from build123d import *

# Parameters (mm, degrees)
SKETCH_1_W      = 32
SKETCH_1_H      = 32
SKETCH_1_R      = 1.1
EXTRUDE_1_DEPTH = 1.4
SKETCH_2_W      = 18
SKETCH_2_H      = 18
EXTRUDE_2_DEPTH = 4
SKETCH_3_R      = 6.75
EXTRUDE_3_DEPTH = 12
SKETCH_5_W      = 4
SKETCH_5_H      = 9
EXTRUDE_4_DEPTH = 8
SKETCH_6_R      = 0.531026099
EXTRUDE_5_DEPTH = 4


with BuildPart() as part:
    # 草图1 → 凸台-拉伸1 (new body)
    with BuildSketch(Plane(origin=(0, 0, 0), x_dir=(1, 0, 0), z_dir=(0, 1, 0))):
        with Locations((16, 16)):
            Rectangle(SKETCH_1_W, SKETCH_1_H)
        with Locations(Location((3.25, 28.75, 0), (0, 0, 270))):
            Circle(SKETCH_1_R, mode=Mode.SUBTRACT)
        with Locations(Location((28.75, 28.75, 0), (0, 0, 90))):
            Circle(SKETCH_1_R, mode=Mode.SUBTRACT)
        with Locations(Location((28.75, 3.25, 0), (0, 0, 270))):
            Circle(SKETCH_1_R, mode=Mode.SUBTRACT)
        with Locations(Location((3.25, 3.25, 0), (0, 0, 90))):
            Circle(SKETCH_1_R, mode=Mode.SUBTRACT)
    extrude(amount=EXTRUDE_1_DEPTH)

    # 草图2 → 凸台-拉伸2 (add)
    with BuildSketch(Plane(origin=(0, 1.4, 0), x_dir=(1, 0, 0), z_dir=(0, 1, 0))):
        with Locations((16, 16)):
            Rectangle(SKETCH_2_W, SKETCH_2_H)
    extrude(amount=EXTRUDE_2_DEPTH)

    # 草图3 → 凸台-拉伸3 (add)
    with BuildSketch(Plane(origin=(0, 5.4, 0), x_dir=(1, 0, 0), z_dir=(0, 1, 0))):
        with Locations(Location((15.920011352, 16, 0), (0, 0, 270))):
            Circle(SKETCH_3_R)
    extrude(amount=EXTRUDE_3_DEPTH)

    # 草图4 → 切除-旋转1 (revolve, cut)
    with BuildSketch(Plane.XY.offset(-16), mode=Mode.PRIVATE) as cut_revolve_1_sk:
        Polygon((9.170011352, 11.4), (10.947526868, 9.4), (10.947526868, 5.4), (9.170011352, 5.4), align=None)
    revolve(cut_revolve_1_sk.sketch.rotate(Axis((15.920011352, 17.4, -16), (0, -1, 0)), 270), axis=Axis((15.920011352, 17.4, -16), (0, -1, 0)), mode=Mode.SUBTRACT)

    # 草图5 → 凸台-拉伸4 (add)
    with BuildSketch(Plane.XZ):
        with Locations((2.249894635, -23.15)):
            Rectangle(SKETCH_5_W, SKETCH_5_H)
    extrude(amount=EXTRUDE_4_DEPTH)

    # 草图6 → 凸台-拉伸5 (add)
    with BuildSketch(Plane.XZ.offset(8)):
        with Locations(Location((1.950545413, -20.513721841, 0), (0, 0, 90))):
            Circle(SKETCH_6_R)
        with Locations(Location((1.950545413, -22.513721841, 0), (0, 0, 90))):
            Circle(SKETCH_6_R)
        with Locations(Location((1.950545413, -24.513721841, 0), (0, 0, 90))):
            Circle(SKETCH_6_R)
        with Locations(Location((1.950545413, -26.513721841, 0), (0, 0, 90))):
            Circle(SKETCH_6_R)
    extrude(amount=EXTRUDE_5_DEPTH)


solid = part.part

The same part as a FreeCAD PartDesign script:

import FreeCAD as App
import Part
import Sketcher

V = App.Vector
Q = App.Units.Quantity

doc = App.newDocument("Part")
body = doc.addObject("PartDesign::Body", "Body")

sketch1 = doc.addObject("Sketcher::SketchObject", "Sketch")
body.addObject(sketch1)
sketch1.AttachmentSupport = (doc.XZ_Plane, [""])
sketch1.MapMode = "FlatFace"
sketch1.addGeometry(Part.LineSegment(V(0, -32, 0), V(0, 0, 0)), False)
sketch1.addGeometry(Part.LineSegment(V(0, 0, 0), V(32, 0, 0)), False)
sketch1.addGeometry(Part.LineSegment(V(32, 0, 0), V(32, -32, 0)), False)
sketch1.addGeometry(Part.LineSegment(V(32, -32, 0), V(0, -32, 0)), False)
sketch1.addGeometry(Part.Circle(V(3.2, -3.2, 0), V(0, 0, 1), 1.1), False)
sketch1.addGeometry(Part.Circle(V(28.8, -3.2, 0), V(0, 0, 1), 1.1), False)
sketch1.addGeometry(Part.Circle(V(3.2, -28.8, 0), V(0, 0, 1), 1.1), False)
sketch1.addGeometry(Part.Circle(V(28.8, -28.8, 0), V(0, 0, 1), 1.1), False)
sketch1.addConstraint(Sketcher.Constraint("Coincident", 0, 2, 1, 1))
sketch1.addConstraint(Sketcher.Constraint("Coincident", 1, 2, 2, 1))
sketch1.addConstraint(Sketcher.Constraint("Coincident", 2, 2, 3, 1))
sketch1.addConstraint(Sketcher.Constraint("Coincident", 3, 2, 0, 1))
sketch1.addConstraint(Sketcher.Constraint("Vertical", 0))
sketch1.addConstraint(Sketcher.Constraint("Horizontal", 1))
sketch1.addConstraint(Sketcher.Constraint("Vertical", 2))
sketch1.addConstraint(Sketcher.Constraint("Horizontal", 3))
sketch1.addConstraint(Sketcher.Constraint("Coincident", 0, 2, -1, 1))
sketch1.addConstraint(Sketcher.Constraint("Equal", 4, 5))
sketch1.addConstraint(Sketcher.Constraint("Equal", 5, 6))
sketch1.addConstraint(Sketcher.Constraint("Equal", 6, 7))
sketch1.addConstraint(Sketcher.Constraint("Horizontal", 4, 3, 5, 3))
sketch1.addConstraint(Sketcher.Constraint("Horizontal", 6, 3, 7, 3))
sketch1.addConstraint(Sketcher.Constraint("Vertical", 4, 3, 6, 3))
sketch1.addConstraint(Sketcher.Constraint("Vertical", 5, 3, 7, 3))
sketch1.addConstraint(Sketcher.Constraint("Equal", 3, 0))
sketch1.addConstraint(Sketcher.Constraint("Diameter", 4, Q("2.2 mm")))
sketch1.addConstraint(Sketcher.Constraint("DistanceX", 1, 1, 1, 2, Q("32 mm")))
sketch1.addConstraint(Sketcher.Constraint("DistanceX", 4, 3, 5, 3, Q("25.5 mm")))
sketch1.addConstraint(Sketcher.Constraint("DistanceY", 6, 3, 4, 3, Q("25.5 mm")))
sketch1.addConstraint(Sketcher.Constraint("DistanceX", -1, 1, 4, 3, Q("3.25 mm")))
sketch1.addConstraint(Sketcher.Constraint("DistanceY", 4, 3, -1, 1, Q("3.25 mm")))
pad1 = doc.addObject("PartDesign::Pad", "Pad")
body.addObject(pad1)
pad1.Profile = sketch1
pad1.Length = 1.4
pad1.Reversed = True

sketch2 = doc.addObject("Sketcher::SketchObject", "Sketch001")
body.addObject(sketch2)
sketch2.AttachmentSupport = (doc.XZ_Plane, [""])
sketch2.MapMode = "FlatFace"
sketch2.AttachmentOffset = App.Placement(V(0, 0, -1.4), App.Rotation())
sketch2.addGeometry(Part.LineSegment(V(7, -25, 0), V(7, -7, 0)), False)
sketch2.addGeometry(Part.LineSegment(V(7, -7, 0), V(25, -7, 0)), False)
sketch2.addGeometry(Part.LineSegment(V(25, -7, 0), V(25, -25, 0)), False)
sketch2.addGeometry(Part.LineSegment(V(25, -25, 0), V(7, -25, 0)), False)
sketch2.addConstraint(Sketcher.Constraint("Coincident", 0, 2, 1, 1))
sketch2.addConstraint(Sketcher.Constraint("Coincident", 1, 2, 2, 1))
sketch2.addConstraint(Sketcher.Constraint("Coincident", 2, 2, 3, 1))
sketch2.addConstraint(Sketcher.Constraint("Coincident", 3, 2, 0, 1))
sketch2.addConstraint(Sketcher.Constraint("Vertical", 0))
sketch2.addConstraint(Sketcher.Constraint("Horizontal", 1))
sketch2.addConstraint(Sketcher.Constraint("Vertical", 2))
sketch2.addConstraint(Sketcher.Constraint("Horizontal", 3))
sketch2.addConstraint(Sketcher.Constraint("Equal", 3, 0))
sketch2.addConstraint(Sketcher.Constraint("DistanceX", 1, 1, 1, 2, Q("18 mm")))
sketch2.addConstraint(Sketcher.Constraint("DistanceX", -1, 1, 0, 2, Q("7 mm")))
sketch2.addConstraint(Sketcher.Constraint("DistanceY", 0, 2, -1, 1, Q("7 mm")))
pad2 = doc.addObject("PartDesign::Pad", "Pad001")
body.addObject(pad2)
pad2.Profile = sketch2
pad2.Length = 4
pad2.Reversed = True

sketch3 = doc.addObject("Sketcher::SketchObject", "Sketch002")
body.addObject(sketch3)
sketch3.AttachmentSupport = (doc.XZ_Plane, [""])
sketch3.MapMode = "FlatFace"
sketch3.AttachmentOffset = App.Placement(V(0, 0, -5.4), App.Rotation())
sketch3.addGeometry(Part.Circle(V(16, -16, 0), V(0, 0, 1), 7), False)
sketch3.addConstraint(Sketcher.Constraint("Diameter", 0, Q("13.5 mm")))
sketch3.addConstraint(Sketcher.Constraint("DistanceY", 0, 3, -1, 1, Q("16 mm")))
sketch3.addConstraint(Sketcher.Constraint("DistanceX", -1, 1, 0, 3, Q("15.920011 mm")))
pad3 = doc.addObject("PartDesign::Pad", "Pad002")
body.addObject(pad3)
pad3.Profile = sketch3
pad3.Length = 12
pad3.Reversed = True

sketch4 = doc.addObject("Sketcher::SketchObject", "Sketch003")
body.addObject(sketch4)
sketch4.AttachmentSupport = (doc.XY_Plane, [""])
sketch4.MapMode = "FlatFace"
sketch4.AttachmentOffset = App.Placement(V(0, 0, -16), App.Rotation())
sketch4.addGeometry(Part.LineSegment(V(10.9, 9.4, 0), V(9.2, 11.4, 0)), False)
sketch4.addGeometry(Part.LineSegment(V(9.2, 11.4, 0), V(9.2, 5.4, 0)), False)
sketch4.addGeometry(Part.LineSegment(V(9.2, 5.4, 0), V(10.9, 5.4, 0)), False)
sketch4.addGeometry(Part.LineSegment(V(10.9, 5.4, 0), V(10.9, 9.4, 0)), False)
sketch4.addGeometry(Part.LineSegment(V(15.9, 11.4, 0), V(15.9, 5.4, 0)), True)
sketch4.addConstraint(Sketcher.Constraint("Coincident", 0, 2, 1, 1))
sketch4.addConstraint(Sketcher.Constraint("Coincident", 1, 2, 2, 1))
sketch4.addConstraint(Sketcher.Constraint("Coincident", 2, 2, 3, 1))
sketch4.addConstraint(Sketcher.Constraint("Coincident", 3, 2, 0, 1))
sketch4.addConstraint(Sketcher.Constraint("Vertical", 1))
sketch4.addConstraint(Sketcher.Constraint("Horizontal", 2))
sketch4.addConstraint(Sketcher.Constraint("Vertical", 3))
sketch4.addConstraint(Sketcher.Constraint("Vertical", 4))
sketch4.addConstraint(Sketcher.Constraint("Horizontal", 0, 2, 4, 1))
sketch4.addConstraint(Sketcher.Constraint("Horizontal", 2, 2, 4, 2))
sketch4.addConstraint(Sketcher.Constraint("DistanceY", 1, 2, 1, 1, Q("6 mm")))
sketch4.addConstraint(Sketcher.Constraint("DistanceY", 3, 1, 3, 2, Q("4 mm")))
sketch4.addConstraint(Sketcher.Constraint("DistanceY", -1, 1, 0, 2, Q("11.4 mm")))
sketch4.addConstraint(Sketcher.Constraint("DistanceX", 0, 2, 4, 1, Q("6.75 mm")))
sketch4.addConstraint(Sketcher.Constraint("DistanceX", 2, 1, 2, 2, Q("1.777516 mm")))
sketch4.addConstraint(Sketcher.Constraint("DistanceX", -1, 1, 0, 2, Q("9.170011 mm")))
groove = doc.addObject("PartDesign::Groove", "Groove")
body.addObject(groove)
groove.Profile = sketch4
groove.ReferenceAxis = (sketch4, ["Axis0"])
groove.Angle = 360

sketch5 = doc.addObject("Sketcher::SketchObject", "Sketch004")
body.addObject(sketch5)
sketch5.AttachmentSupport = (doc.XZ_Plane, [""])
sketch5.MapMode = "FlatFace"
sketch5.addGeometry(Part.LineSegment(V(0.2, -18.6, 0), V(0.2, -27.6, 0)), False)
sketch5.addGeometry(Part.LineSegment(V(0.2, -27.6, 0), V(4.2, -27.6, 0)), False)
sketch5.addGeometry(Part.LineSegment(V(4.2, -27.6, 0), V(4.2, -18.6, 0)), False)
sketch5.addGeometry(Part.LineSegment(V(4.2, -18.6, 0), V(0.2, -18.6, 0)), False)
sketch5.addConstraint(Sketcher.Constraint("Coincident", 0, 2, 1, 1))
sketch5.addConstraint(Sketcher.Constraint("Coincident", 1, 2, 2, 1))
sketch5.addConstraint(Sketcher.Constraint("Coincident", 2, 2, 3, 1))
sketch5.addConstraint(Sketcher.Constraint("Coincident", 3, 2, 0, 1))
sketch5.addConstraint(Sketcher.Constraint("Vertical", 0))
sketch5.addConstraint(Sketcher.Constraint("Horizontal", 1))
sketch5.addConstraint(Sketcher.Constraint("Vertical", 2))
sketch5.addConstraint(Sketcher.Constraint("Horizontal", 3))
sketch5.addConstraint(Sketcher.Constraint("DistanceX", 1, 1, 1, 2, Q("4 mm")))
sketch5.addConstraint(Sketcher.Constraint("DistanceY", 0, 2, 0, 1, Q("9 mm")))
sketch5.addConstraint(Sketcher.Constraint("DistanceY", 0, 2, -1, 1, Q("27.65 mm")))
sketch5.addConstraint(Sketcher.Constraint("DistanceX", -1, 1, 0, 2, Q("0.249895 mm")))
pad4 = doc.addObject("PartDesign::Pad", "Pad003")
body.addObject(pad4)
pad4.Profile = sketch5
pad4.Length = 8

sketch6 = doc.addObject("Sketcher::SketchObject", "Sketch005")
body.addObject(sketch6)
sketch6.AttachmentSupport = (doc.XZ_Plane, [""])
sketch6.MapMode = "FlatFace"
sketch6.AttachmentOffset = App.Placement(V(0, 0, 8), App.Rotation())
sketch6.addGeometry(Part.Circle(V(2, -20.5, 0), V(0, 0, 1), 0.5), False)
sketch6.addGeometry(Part.Circle(V(2, -22.5, 0), V(0, 0, 1), 0.5), False)
sketch6.addGeometry(Part.Circle(V(2, -24.5, 0), V(0, 0, 1), 0.5), False)
sketch6.addGeometry(Part.Circle(V(2, -26.5, 0), V(0, 0, 1), 0.5), False)
sketch6.addConstraint(Sketcher.Constraint("Equal", 0, 1))
sketch6.addConstraint(Sketcher.Constraint("Equal", 1, 2))
sketch6.addConstraint(Sketcher.Constraint("Equal", 2, 3))
sketch6.addConstraint(Sketcher.Constraint("Vertical", 0, 3, 1, 3))
sketch6.addConstraint(Sketcher.Constraint("Vertical", 1, 3, 2, 3))
sketch6.addConstraint(Sketcher.Constraint("Vertical", 2, 3, 3, 3))
sketch6.addConstraint(Sketcher.Constraint("DistanceY", 1, 3, 0, 3, Q("2 mm")))
sketch6.addConstraint(Sketcher.Constraint("DistanceY", 2, 3, 1, 3, Q("2 mm")))
sketch6.addConstraint(Sketcher.Constraint("DistanceY", 3, 3, 2, 3, Q("2 mm")))
sketch6.addConstraint(Sketcher.Constraint("Diameter", 0, Q("1.062052 mm")))
sketch6.addConstraint(Sketcher.Constraint("DistanceY", 0, 3, -1, 1, Q("20.513722 mm")))
sketch6.addConstraint(Sketcher.Constraint("DistanceX", -1, 1, 0, 3, Q("1.950545 mm")))
pad5 = doc.addObject("PartDesign::Pad", "Pad004")
body.addObject(pad5)
pad5.Profile = sketch6
pad5.Length = 4

doc.recompute()
